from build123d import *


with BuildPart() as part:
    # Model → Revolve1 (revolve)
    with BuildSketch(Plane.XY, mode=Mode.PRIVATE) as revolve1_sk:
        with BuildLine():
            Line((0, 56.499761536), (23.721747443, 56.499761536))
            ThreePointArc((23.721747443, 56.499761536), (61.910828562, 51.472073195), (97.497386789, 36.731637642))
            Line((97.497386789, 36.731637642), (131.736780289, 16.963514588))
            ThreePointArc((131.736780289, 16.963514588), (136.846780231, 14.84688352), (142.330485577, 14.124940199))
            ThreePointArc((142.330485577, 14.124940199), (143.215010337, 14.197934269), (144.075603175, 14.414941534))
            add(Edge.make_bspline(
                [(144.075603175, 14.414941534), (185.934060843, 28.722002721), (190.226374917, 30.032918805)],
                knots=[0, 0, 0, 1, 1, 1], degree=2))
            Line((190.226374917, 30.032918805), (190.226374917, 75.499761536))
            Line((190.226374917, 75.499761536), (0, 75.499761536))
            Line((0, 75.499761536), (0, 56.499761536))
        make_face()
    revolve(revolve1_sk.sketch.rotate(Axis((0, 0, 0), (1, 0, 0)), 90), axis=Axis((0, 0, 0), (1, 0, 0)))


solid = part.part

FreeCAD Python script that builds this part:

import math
import FreeCAD as App
import Part
import Sketcher
from FreeCAD import Vector
Q = App.Units.Quantity

doc = App.newDocument("Part")
body = doc.addObject("PartDesign::Body", "Body")

# Sketch on XY plane
sketch1 = doc.addObject("Sketcher::SketchObject", "Sketch")
body.addObject(sketch1)
sketch1.AttachmentSupport = (doc.XY_Plane, [""])
sketch1.MapMode = "FlatFace"
sketch1.addGeometry([
    Part.LineSegment(Vector(0, 56.499762, 0), Vector(23.721747, 56.499762, 0)),  # 0
    Part.ArcOfCircle(Part.Circle(Vector(23.721746, -91.051517, 0), Vector(0, 0, 1), 147.551279), math.radians(59.999999), math.radians(89.999999)),  # 1
    Part.LineSegment(Vector(97.497387, 36.731638, 0), Vector(131.73678, 16.963515, 0)),  # 2
    Part.ArcOfCircle(Part.Circle(Vector(142.330485, 35.312351, 0), Vector(0, 0, 1), 21.187411), math.radians(-119.999998), math.radians(-89.999998)),  # 3
    Part.ArcOfCircle(Part.Circle(Vector(142.330486, 19.520667, 0), Vector(0, 0, 1), 5.395727), math.radians(-90), math.radians(-71.129768)),  # 4
    Part.BSplineCurve([Vector(144.075603, 14.414942, 0), Vector(185.934061, 28.722003, 0), Vector(190.226375, 30.032919, 0)], [3, 3], [0, 1], False, 2, [1, 1, 1], False),  # 5
    Part.LineSegment(Vector(190.226375, 30.032919, 0), Vector(190.226375, 75.499762, 0)),  # 6
    Part.LineSegment(Vector(190.226375, 75.499762, 0), Vector(0, 75.499762, 0)),  # 7
    Part.LineSegment(Vector(0, 75.499762, 0), Vector(0, 56.499762, 0)),  # 8
], False)
sketch1.addConstraint([
    Sketcher.Constraint("Block", 5),
    Sketcher.Constraint("Tangent", 0, 2, 1, 2),
    Sketcher.Constraint("Tangent", 1, 1, 2, 1),
    Sketcher.Constraint("Tangent", 2, 2, 3, 1),
    Sketcher.Constraint("Tangent", 3, 2, 4, 1),
    Sketcher.Constraint("Coincident", 4, 2, 5, 1),
    Sketcher.Constraint("Coincident", 5, 2, 6, 1),
    Sketcher.Constraint("Coincident", 6, 2, 7, 1),
    Sketcher.Constraint("Coincident", 7, 2, 8, 1),
    Sketcher.Constraint("Coincident", 8, 2, 0, 1),
    Sketcher.Constraint("Horizontal", 0),
    Sketcher.Constraint("Vertical", 6),
    Sketcher.Constraint("Horizontal", 7),
    Sketcher.Constraint("Vertical", 8),
    Sketcher.Constraint("PointOnObject", 7, 2, -2),
    Sketcher.Constraint("Vertical", 3, 3, 4, 3),
    Sketcher.Constraint("DistanceY", 8, 2, 8, 1, 19.0),
    Sketcher.Constraint("Angle", 2, Q("-30 deg")),
    Sketcher.Constraint("Radius", 1, 147.551279),
    Sketcher.Constraint("Radius", 3, 21.187411),
    Sketcher.Constraint("DistanceY", 3, 2, 4, 2, 0.290001),
    Sketcher.Constraint("Radius", 4, 5.395727),
    Sketcher.Constraint("DistanceX", 1, 1, 3, 3, 44.833098),
])
revolution = doc.addObject("PartDesign::Revolution", "Revolution")
body.addObject(revolution)
revolution.Profile = sketch1
revolution.ReferenceAxis = (sketch1, ["H_Axis"])
revolution.Angle = 360

doc.recompute()
